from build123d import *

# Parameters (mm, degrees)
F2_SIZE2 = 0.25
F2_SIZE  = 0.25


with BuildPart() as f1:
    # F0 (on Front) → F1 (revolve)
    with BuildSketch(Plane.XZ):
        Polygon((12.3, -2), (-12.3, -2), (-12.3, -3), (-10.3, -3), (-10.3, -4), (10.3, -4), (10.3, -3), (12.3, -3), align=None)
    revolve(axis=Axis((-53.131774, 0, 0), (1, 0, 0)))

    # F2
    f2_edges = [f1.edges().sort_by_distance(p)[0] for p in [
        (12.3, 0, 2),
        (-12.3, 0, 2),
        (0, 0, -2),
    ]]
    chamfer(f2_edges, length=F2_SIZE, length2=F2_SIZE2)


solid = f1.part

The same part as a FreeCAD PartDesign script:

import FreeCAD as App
import Part
import Sketcher


def edges_at(feature, points):
    """Names of the edges that pass closest to the given points."""
    edges = feature.Shape.Edges
    near = lambda p: min(range(len(edges)), key=lambda i: edges[i].distToShape(Part.Vertex(*p))[0])
    return sorted({f"Edge{near(p) + 1}" for p in points})

doc = App.newDocument("Part")
body = doc.addObject("PartDesign::Body", "Body")

sketch1 = body.newObject("Sketcher::SketchObject", "Sketch")
sketch1.AttachmentSupport = (doc.getObject("XZ_Plane"), [""])
sketch1.MapMode = "FlatFace"
sketch1.addGeometry(Part.LineSegment(App.Vector(12.3, -2, 0), App.Vector(-12.3, -2, 0)), False)
sketch1.addGeometry(Part.LineSegment(App.Vector(-12.3, -2, 0), App.Vector(-12.3, -3, 0)), False)
sketch1.addGeometry(Part.LineSegment(App.Vector(-12.3, -3, 0), App.Vector(-10.3, -3, 0)), False)
sketch1.addGeometry(Part.LineSegment(App.Vector(-10.3, -3, 0), App.Vector(-10.3, -4, 0)), False)
sketch1.addGeometry(Part.LineSegment(App.Vector(-10.3, -4, 0), App.Vector(10.3, -4, 0)), False)
sketch1.addGeometry(Part.LineSegment(App.Vector(10.3, -4, 0), App.Vector(10.3, -3, 0)), False)
sketch1.addGeometry(Part.LineSegment(App.Vector(10.3, -3, 0), App.Vector(12.3, -3, 0)), False)
sketch1.addGeometry(Part.LineSegment(App.Vector(12.3, -3, 0), App.Vector(12.3, -2, 0)), False)
sketch1.addConstraint(Sketcher.Constraint("Coincident", 0, 2, 1, 1))
sketch1.addConstraint(Sketcher.Constraint("Coincident", 1, 2, 2, 1))
sketch1.addConstraint(Sketcher.Constraint("Coincident", 2, 2, 3, 1))
sketch1.addConstraint(Sketcher.Constraint("Coincident", 3, 2, 4, 1))
sketch1.addConstraint(Sketcher.Constraint("Coincident", 4, 2, 5, 1))
sketch1.addConstraint(Sketcher.Constraint("Coincident", 5, 2, 6, 1))
sketch1.addConstraint(Sketcher.Constraint("Coincident", 6, 2, 7, 1))
sketch1.addConstraint(Sketcher.Constraint("Coincident", 7, 2, 0, 1))
sketch1.addConstraint(Sketcher.Constraint("Horizontal", 0))
sketch1.addConstraint(Sketcher.Constraint("Vertical", 1))
sketch1.addConstraint(Sketcher.Constraint("Horizontal", 2))
sketch1.addConstraint(Sketcher.Constraint("Vertical", 3))
sketch1.addConstraint(Sketcher.Constraint("Horizontal", 4))
sketch1.addConstraint(Sketcher.Constraint("Vertical", 5))
sketch1.addConstraint(Sketcher.Constraint("Horizontal", 6))
sketch1.addConstraint(Sketcher.Constraint("Vertical", 7))
sketch1.addConstraint(Sketcher.Constraint("Symmetric", 2, 2, 5, 2, -2))
sketch1.addConstraint(Sketcher.Constraint("Equal", 2, 6))
sketch1.addConstraint(Sketcher.Constraint("Equal", 1, 3))
sketch1.addConstraint(Sketcher.Constraint("DistanceX", 2, 1, 2, 2, 2.0))
sketch1.addConstraint(Sketcher.Constraint("DistanceY", 1, 2, 1, 1, 1.0))
sketch1.addConstraint(Sketcher.Constraint("DistanceX", 0, 2, 0, 1, 24.6))
sketch1.addConstraint(Sketcher.Constraint("DistanceY", 0, 2, -1, 1, 2.0))
revolution = body.newObject("PartDesign::Revolution", "Revolution")
revolution.Profile = sketch1
revolution.ReferenceAxis = (sketch1, ["H_Axis"])
revolution.Angle = 360
doc.recompute()

chamfer = body.newObject("PartDesign::Chamfer", "Chamfer")
chamfer.Base = (revolution, edges_at(revolution, [(12.3, 0, 2), (-12.3, 0, 2), (0, 0, -2)]))
chamfer.ChamferType = "Two distances"
chamfer.Size = 0.25
chamfer.Size2 = 0.25

doc.recompute()
